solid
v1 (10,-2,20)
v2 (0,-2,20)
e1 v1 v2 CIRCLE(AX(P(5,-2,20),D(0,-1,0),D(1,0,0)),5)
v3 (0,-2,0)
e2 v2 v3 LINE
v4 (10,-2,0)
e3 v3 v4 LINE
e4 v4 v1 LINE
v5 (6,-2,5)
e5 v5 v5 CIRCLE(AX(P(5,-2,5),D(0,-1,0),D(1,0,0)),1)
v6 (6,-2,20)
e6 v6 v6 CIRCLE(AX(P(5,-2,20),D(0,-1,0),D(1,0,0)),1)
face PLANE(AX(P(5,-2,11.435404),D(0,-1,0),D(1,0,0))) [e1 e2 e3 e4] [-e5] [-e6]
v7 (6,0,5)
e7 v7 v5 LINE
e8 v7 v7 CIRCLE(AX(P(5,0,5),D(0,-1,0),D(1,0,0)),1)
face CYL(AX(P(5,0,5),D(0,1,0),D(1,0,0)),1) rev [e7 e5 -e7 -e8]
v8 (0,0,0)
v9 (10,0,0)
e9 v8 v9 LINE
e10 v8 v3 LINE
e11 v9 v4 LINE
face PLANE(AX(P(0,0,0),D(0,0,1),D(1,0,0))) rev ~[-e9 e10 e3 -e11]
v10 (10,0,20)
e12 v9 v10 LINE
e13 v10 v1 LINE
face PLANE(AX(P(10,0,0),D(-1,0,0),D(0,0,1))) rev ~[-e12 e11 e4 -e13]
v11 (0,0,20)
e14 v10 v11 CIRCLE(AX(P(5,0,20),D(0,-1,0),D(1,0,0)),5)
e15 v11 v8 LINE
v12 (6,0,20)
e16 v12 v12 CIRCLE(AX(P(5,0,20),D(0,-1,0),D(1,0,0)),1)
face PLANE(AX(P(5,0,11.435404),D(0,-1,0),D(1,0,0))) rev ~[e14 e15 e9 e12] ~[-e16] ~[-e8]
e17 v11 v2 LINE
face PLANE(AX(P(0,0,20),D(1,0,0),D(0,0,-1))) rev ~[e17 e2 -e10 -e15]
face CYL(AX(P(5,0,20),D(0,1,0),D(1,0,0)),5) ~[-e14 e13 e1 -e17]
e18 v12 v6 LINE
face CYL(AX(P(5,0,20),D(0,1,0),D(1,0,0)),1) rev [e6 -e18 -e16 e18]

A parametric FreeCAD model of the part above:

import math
import FreeCAD as App
import Part
import Sketcher

V = App.Vector

doc = App.newDocument("Part")
body = doc.addObject("PartDesign::Body", "Body")

# Sketch on XZ plane
sketch1 = body.newObject("Sketcher::SketchObject", "Sketch")
sketch1.AttachmentSupport = (doc.getObject("XZ_Plane"), [""])
sketch1.MapMode = "FlatFace"
sketch1.addGeometry([
    Part.LineSegment(V(0, 20, 0), V(0, 0, 0)),  # 0
    Part.LineSegment(V(0, 0, 0), V(10, 0, 0)),  # 1
    Part.LineSegment(V(10, 0, 0), V(10, 20, 0)),  # 2
    Part.ArcOfCircle(Part.Circle(V(5, 20, 0), V(0, 0, 1), 5), math.radians(0), math.radians(180)),  # 3
    Part.Circle(V(5, 5, 0), V(0, 0, 1), 1),  # 4
    Part.Circle(V(5, 20, 0), V(0, 0, 1), 1),  # 5
], False)
sketch1.addConstraint([
    Sketcher.Constraint("Coincident", 0, 2, 1, 1),
    Sketcher.Constraint("Coincident", 1, 2, 2, 1),
    Sketcher.Constraint("Tangent", 2, 2, 3, 1),
    Sketcher.Constraint("Tangent", 3, 2, 0, 1),
    Sketcher.Constraint("Vertical", 0),
    Sketcher.Constraint("Horizontal", 1),
    Sketcher.Constraint("Vertical", 2),
    Sketcher.Constraint("Coincident", 0, 2, -1, 1),
    Sketcher.Constraint("Coincident", 5, 3, 3, 3),
    Sketcher.Constraint("Equal", 4, 5),
    Sketcher.Constraint("Vertical", 3, 3, 4, 3),
    Sketcher.Constraint("Diameter", 4, 2.0),
    Sketcher.Constraint("Radius", 3, 5.0),
    Sketcher.Constraint("DistanceY", 0, 2, 0, 1, 20.0),
    Sketcher.Constraint("DistanceY", -1, 1, 4, 3, 5.0),
])
pad1 = body.newObject("PartDesign::Pad", "Pad")
pad1.Profile = sketch1
pad1.Length = 2

doc.recompute()
